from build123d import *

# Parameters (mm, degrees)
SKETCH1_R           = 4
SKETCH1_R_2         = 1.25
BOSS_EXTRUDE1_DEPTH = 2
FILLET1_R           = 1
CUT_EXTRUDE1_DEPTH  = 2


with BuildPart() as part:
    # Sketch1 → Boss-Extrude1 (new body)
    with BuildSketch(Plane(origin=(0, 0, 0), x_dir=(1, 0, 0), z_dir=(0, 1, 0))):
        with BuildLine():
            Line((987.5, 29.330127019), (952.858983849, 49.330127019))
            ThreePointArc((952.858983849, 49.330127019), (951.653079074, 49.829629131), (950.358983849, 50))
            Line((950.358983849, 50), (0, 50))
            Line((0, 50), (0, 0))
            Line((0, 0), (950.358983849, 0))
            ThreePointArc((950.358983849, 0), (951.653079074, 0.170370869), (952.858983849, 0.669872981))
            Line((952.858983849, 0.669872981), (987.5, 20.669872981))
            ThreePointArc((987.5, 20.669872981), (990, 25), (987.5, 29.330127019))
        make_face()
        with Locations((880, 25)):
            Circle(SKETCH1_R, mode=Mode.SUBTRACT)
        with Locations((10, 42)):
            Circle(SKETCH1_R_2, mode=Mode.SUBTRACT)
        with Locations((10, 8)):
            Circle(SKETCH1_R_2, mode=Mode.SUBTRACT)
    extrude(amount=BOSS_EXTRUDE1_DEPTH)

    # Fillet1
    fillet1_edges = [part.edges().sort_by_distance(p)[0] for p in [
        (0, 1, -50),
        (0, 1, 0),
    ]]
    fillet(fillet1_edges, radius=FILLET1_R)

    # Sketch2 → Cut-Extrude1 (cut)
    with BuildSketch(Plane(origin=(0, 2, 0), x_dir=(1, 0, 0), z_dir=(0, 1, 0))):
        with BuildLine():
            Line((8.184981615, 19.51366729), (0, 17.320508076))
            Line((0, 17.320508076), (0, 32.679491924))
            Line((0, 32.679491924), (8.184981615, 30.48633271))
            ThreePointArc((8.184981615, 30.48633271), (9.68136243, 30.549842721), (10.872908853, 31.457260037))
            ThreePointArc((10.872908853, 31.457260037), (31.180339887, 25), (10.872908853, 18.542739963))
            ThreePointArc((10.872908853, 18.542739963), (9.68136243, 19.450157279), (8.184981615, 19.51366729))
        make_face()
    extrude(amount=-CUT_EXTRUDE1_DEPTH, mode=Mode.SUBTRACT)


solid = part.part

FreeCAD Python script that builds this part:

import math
import FreeCAD as App
import Part
import Sketcher
from FreeCAD import Vector
Q = App.Units.Quantity


def edges_at(feature, points):
    """Names of the edges that pass closest to the given points."""
    edges = feature.Shape.Edges
    near = lambda p: min(range(len(edges)), key=lambda i: edges[i].distToShape(Part.Vertex(*p))[0])
    return sorted({f"Edge{near(p) + 1}" for p in points})

doc = App.newDocument("Part")
body = doc.addObject("PartDesign::Body", "Body")

# Sketch on XZ plane
sketch1 = body.newObject("Sketcher::SketchObject", "Sketch")
sketch1.AttachmentSupport = (doc.getObject("XZ_Plane"), [""])
sketch1.MapMode = "FlatFace"
sketch1.addGeometry([
    Part.LineSegment(Vector(987.5, -29.3, 0), Vector(952.9, -49.3, 0)),  # 0
    Part.ArcOfCircle(Part.Circle(Vector(950.4, -45, 0), Vector(0, 0, 1), 5), math.radians(-90), math.radians(-60)),  # 1
    Part.LineSegment(Vector(950.4, -50, 0), Vector(0, -50, 0)),  # 2
    Part.LineSegment(Vector(0, -50, 0), Vector(0, 0, 0)),  # 3
    Part.LineSegment(Vector(0, 0, 0), Vector(950.4, 0, 0)),  # 4
    Part.ArcOfCircle(Part.Circle(Vector(950.4, -5, 0), Vector(0, 0, 1), 5), math.radians(60), math.radians(90)),  # 5
    Part.LineSegment(Vector(952.9, -0.7, 0), Vector(987.5, -20.7, 0)),  # 6
    Part.ArcOfCircle(Part.Circle(Vector(985, -25, 0), Vector(0, 0, 1), 5), math.radians(-60), math.radians(60)),  # 7
    Part.Circle(Vector(10, -8, 0), Vector(0, 0, 1), 1.2),  # 8
    Part.Circle(Vector(10, -42, 0), Vector(0, 0, 1), 1.2),  # 9
    Part.Circle(Vector(880, -25, 0), Vector(0, 0, 1), 4),  # 10
], False)
sketch1.addConstraint([
    Sketcher.Constraint("Tangent", 0, 2, 1, 2),
    Sketcher.Constraint("Tangent", 1, 1, 2, 1),
    Sketcher.Constraint("Coincident", 2, 2, 3, 1),
    Sketcher.Constraint("Coincident", 3, 2, 4, 1),
    Sketcher.Constraint("Tangent", 4, 2, 5, 2),
    Sketcher.Constraint("Tangent", 5, 1, 6, 1),
    Sketcher.Constraint("Tangent", 6, 2, 7, 2),
    Sketcher.Constraint("Tangent", 7, 1, 0, 1),
    Sketcher.Constraint("Horizontal", 2),
    Sketcher.Constraint("Vertical", 3),
    Sketcher.Constraint("Horizontal", 4),
    Sketcher.Constraint("Coincident", 3, 2, -1, 1),
    Sketcher.Constraint("Equal", 1, 5),
    Sketcher.Constraint("Equal", 5, 7),
    Sketcher.Constraint("Equal", 8, 9),
    Sketcher.Constraint("Horizontal", 7, 3, 10, 3),
    Sketcher.Constraint("Vertical", 1, 3, 5, 3),
    Sketcher.Constraint("Vertical", 8, 3, 9, 3),
    Sketcher.Constraint("Vertical", 0, 2, 5, 1),
    Sketcher.Constraint("Diameter", 10, 8.0),
    Sketcher.Constraint("Radius", 1, 5.0),
    Sketcher.Constraint("Diameter", 8, 2.5),
    Sketcher.Constraint("DistanceY", 3, 1, 3, 2, 50.0),
    Sketcher.Constraint("Angle", 0, Q("-150 deg")),
    Sketcher.Constraint("DistanceX", -1, 1, 7, 3, 985.0),
    Sketcher.Constraint("DistanceX", -1, 1, 8, 3, 10.0),
    Sketcher.Constraint("DistanceY", 8, 3, -1, 1, 8.0),
    Sketcher.Constraint("DistanceY", 9, 3, -1, 1, 42.0),
    Sketcher.Constraint("DistanceX", -1, 1, 10, 3, 880.0),
])
pad1 = body.newObject("PartDesign::Pad", "Pad")
pad1.Profile = sketch1
pad1.Length = 2
pad1.Reversed = True
doc.recompute()

fillet = body.newObject("PartDesign::Fillet", "Fillet")
fillet.Base = (pad1, edges_at(pad1, [(0, 1, -50), (0, 1, 0)]))
fillet.Radius = 1

# Sketch on XZ plane
sketch2 = body.newObject("Sketcher::SketchObject", "Sketch001")
sketch2.AttachmentSupport = (doc.getObject("XZ_Plane"), [""])
sketch2.MapMode = "FlatFace"
sketch2.AttachmentOffset = App.Placement(Vector(0, 0, -2), App.Rotation())
sketch2.addGeometry([
    Part.LineSegment(Vector(0, -17.3, 0), Vector(8.2, -19.5, 0)),  # 0
    Part.ArcOfCircle(Part.Circle(Vector(8.8, -17.1, 0), Vector(0, 0, 1), 2.5), math.radians(-105), math.radians(-35)),  # 1
    Part.ArcOfCircle(Part.Circle(Vector(20, -25, 0), Vector(0, 0, 1), 11.2), math.radians(-145), math.radians(145)),  # 2
    Part.ArcOfCircle(Part.Circle(Vector(8.8, -32.9, 0), Vector(0, 0, 1), 2.5), math.radians(35), math.radians(105)),  # 3
    Part.LineSegment(Vector(8.2, -30.5, 0), Vector(0, -32.7, 0)),  # 4
    Part.LineSegment(Vector(0, -32.7, 0), Vector(0, -17.3, 0)),  # 5
], False)
sketch2.addConstraint([
    Sketcher.Constraint("Tangent", 0, 2, 1, 1),
    Sketcher.Constraint("Tangent", 1, 2, 2, 2),
    Sketcher.Constraint("Tangent", 2, 1, 3, 1),
    Sketcher.Constraint("Tangent", 3, 2, 4, 1),
    Sketcher.Constraint("Coincident", 4, 2, 5, 1),
    Sketcher.Constraint("Coincident", 5, 2, 0, 1),
    Sketcher.Constraint("Vertical", 5),
    Sketcher.Constraint("Equal", 1, 3),
    Sketcher.Constraint("PointOnObject", 4, 2, -2),
    Sketcher.Constraint("Vertical", 1, 3, 3, 3),
    Sketcher.Constraint("Vertical", 0, 2, 3, 2),
    Sketcher.Constraint("Radius", 1, 2.5),
    Sketcher.Constraint("Angle", 0, Q("-15 deg")),
    Sketcher.Constraint("DistanceX", -1, 1, 2, 3, 20.0),
    Sketcher.Constraint("DistanceY", 2, 3, -1, 1, 25.0),
    Sketcher.Constraint("Radius", 2, 11.18034),
    Sketcher.Constraint("DistanceY", 5, 1, 5, 2, 15.358984),
])
pocket1 = body.newObject("PartDesign::Pocket", "Pocket")
pocket1.Profile = sketch2
pocket1.Length = 2
pocket1.Reversed = True

doc.recompute()
